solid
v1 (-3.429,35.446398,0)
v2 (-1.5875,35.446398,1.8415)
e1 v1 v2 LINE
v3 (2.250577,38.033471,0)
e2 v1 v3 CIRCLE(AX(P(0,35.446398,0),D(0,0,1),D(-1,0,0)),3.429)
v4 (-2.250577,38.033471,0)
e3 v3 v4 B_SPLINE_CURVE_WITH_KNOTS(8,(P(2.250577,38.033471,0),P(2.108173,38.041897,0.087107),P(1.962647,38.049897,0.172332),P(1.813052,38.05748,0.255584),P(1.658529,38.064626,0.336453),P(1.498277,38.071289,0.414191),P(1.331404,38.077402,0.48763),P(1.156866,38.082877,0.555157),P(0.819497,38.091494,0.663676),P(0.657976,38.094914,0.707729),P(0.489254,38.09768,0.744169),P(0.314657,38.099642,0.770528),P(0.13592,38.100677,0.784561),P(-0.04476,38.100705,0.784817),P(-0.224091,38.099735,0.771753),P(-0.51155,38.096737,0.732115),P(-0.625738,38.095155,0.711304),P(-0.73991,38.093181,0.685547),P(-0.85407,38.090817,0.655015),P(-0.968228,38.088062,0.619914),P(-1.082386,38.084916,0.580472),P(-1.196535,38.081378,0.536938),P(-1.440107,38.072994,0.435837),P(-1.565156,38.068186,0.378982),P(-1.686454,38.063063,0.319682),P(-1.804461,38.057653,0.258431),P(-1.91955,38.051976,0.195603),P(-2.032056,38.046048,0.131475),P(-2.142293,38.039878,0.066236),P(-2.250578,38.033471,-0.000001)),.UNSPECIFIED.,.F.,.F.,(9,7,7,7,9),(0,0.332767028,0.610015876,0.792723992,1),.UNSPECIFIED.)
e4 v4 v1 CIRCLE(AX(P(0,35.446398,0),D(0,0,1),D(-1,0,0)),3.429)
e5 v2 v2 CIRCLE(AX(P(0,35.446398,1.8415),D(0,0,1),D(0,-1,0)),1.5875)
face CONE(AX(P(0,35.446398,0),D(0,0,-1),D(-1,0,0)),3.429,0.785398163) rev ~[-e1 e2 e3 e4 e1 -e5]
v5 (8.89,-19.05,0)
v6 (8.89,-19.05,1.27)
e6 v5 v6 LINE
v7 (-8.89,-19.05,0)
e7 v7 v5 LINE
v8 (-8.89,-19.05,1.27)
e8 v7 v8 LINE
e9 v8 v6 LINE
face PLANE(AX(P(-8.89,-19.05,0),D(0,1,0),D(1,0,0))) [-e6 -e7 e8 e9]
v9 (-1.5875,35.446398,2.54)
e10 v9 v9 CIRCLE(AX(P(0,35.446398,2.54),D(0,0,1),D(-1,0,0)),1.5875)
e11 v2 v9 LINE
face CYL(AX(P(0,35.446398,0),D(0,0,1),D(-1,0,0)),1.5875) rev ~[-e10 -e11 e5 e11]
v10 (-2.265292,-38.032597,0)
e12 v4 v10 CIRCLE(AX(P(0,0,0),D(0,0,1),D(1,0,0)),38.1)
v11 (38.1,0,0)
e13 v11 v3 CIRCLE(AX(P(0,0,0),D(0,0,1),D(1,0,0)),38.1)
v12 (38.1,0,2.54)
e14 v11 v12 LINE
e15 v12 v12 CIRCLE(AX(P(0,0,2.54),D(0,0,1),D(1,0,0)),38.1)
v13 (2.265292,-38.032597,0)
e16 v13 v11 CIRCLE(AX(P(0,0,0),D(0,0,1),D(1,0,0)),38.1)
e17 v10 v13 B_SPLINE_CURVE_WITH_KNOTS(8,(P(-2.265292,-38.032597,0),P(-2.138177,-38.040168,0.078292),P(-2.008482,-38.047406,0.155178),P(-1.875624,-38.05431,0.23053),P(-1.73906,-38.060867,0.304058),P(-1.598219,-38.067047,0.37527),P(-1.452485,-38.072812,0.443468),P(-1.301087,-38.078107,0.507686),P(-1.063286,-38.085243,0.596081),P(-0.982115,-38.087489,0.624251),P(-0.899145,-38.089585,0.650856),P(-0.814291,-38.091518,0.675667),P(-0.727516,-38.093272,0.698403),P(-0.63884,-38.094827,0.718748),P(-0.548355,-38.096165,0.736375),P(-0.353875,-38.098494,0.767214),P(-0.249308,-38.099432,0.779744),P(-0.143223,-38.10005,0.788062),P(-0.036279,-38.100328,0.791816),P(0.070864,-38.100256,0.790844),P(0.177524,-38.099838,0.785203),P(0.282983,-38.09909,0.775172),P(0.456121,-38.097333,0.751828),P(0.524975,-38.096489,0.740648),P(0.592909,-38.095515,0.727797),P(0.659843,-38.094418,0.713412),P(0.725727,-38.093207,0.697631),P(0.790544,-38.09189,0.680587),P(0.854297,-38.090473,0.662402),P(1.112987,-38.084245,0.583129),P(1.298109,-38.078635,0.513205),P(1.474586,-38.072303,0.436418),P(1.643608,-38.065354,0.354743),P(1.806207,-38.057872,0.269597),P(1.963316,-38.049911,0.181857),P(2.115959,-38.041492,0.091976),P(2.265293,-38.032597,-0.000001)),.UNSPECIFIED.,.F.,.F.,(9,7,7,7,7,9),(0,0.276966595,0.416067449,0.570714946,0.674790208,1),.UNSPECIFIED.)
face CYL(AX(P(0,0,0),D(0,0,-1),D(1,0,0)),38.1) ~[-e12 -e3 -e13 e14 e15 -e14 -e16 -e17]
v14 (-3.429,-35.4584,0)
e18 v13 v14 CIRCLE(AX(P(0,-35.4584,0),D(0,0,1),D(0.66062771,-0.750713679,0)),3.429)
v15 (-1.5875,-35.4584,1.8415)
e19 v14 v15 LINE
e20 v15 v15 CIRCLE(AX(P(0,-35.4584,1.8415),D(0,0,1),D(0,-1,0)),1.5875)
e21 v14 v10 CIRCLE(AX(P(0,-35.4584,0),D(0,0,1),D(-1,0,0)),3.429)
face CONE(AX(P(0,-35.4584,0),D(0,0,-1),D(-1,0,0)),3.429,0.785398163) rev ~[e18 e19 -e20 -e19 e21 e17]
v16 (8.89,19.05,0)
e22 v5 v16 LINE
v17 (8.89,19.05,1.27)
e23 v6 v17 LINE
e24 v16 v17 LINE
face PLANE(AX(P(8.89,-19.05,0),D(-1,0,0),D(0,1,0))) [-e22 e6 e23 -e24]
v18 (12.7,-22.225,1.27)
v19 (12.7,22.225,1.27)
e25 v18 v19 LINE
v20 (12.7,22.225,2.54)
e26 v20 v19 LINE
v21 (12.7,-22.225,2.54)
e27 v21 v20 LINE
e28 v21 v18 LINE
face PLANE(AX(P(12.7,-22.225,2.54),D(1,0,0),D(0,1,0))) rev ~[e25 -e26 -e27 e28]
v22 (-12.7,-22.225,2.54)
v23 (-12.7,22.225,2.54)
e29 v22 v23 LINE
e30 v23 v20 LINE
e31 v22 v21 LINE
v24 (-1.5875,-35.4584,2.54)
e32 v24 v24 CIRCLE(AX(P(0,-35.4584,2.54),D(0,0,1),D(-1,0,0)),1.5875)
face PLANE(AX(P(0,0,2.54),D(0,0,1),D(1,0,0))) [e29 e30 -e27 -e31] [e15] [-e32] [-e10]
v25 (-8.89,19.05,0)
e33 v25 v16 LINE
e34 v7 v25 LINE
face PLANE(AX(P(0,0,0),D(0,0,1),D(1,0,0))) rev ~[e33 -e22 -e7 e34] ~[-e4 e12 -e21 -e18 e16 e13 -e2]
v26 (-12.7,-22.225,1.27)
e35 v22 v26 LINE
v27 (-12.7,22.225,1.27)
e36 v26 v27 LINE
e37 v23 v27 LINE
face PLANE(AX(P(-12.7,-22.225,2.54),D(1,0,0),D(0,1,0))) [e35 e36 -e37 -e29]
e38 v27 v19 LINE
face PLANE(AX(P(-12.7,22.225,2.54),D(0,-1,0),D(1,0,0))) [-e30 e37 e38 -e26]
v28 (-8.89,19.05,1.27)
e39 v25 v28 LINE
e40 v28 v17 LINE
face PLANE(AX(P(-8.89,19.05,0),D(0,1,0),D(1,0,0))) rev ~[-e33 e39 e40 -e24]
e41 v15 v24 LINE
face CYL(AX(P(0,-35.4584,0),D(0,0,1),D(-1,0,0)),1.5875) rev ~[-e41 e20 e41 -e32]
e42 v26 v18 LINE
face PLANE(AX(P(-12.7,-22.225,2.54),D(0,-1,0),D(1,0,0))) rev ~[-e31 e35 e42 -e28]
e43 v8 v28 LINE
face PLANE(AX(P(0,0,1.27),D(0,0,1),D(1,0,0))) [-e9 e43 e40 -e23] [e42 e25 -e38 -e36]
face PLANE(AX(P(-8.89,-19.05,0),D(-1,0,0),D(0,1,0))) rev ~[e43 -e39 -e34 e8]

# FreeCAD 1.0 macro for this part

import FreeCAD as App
import Part
import Sketcher
Q = App.Units.Quantity


def add_polygon(sketch, points):
    """Adds a closed chain of lines whose ends are joined by coincident constraints."""
    first, n = sketch.GeometryCount, len(points)
    for a, b in zip(points, points[1:] + points[:1]):
        sketch.addGeometry(Part.LineSegment(App.Vector(*a, 0), App.Vector(*b, 0)), False)
    for i in range(n):
        sketch.addConstraint(Sketcher.Constraint("Coincident", first + i, 2, first + (i + 1) % n, 1))

doc = App.newDocument("Part")
body = doc.addObject("PartDesign::Body", "Body")

# Sketch on XY plane
sketch1 = body.newObject("Sketcher::SketchObject", "Sketch")
sketch1.AttachmentSupport = (doc.getObject("XY_Plane"), [""])
sketch1.MapMode = "FlatFace"
sketch1.addGeometry(Part.Circle(App.Vector(0, 0, 0), App.Vector(0, 0, 1), 38.1), False)  # 0
add_polygon(sketch1, [(8.89, -19.05), (-8.89, -19.05), (-8.89, 19.05), (8.89, 19.05)])  # lines 1-4
sketch1.addConstraint(Sketcher.Constraint("Horizontal", 1))
sketch1.addConstraint(Sketcher.Constraint("Vertical", 2))
sketch1.addConstraint(Sketcher.Constraint("Horizontal", 3))
sketch1.addConstraint(Sketcher.Constraint("Vertical", 4))
sketch1.addConstraint(Sketcher.Constraint("Coincident", 0, 3, -1, 1))
sketch1.addConstraint(Sketcher.Constraint("Symmetric", 1, 2, 3, 2, -1, 1))
sketch1.addConstraint(Sketcher.Constraint("Diameter", 0, Q("3 in")))
sketch1.addConstraint(Sketcher.Constraint("DistanceX", 1, 2, 1, 1, Q("0.7 in")))
sketch1.addConstraint(Sketcher.Constraint("DistanceY", 2, 1, 2, 2, Q("1.5 in")))
pad1 = body.newObject("PartDesign::Pad", "Pad")
pad1.Profile = sketch1
pad1.Length = Q("0.1 in")

# Sketch on XY plane
sketch2 = body.newObject("Sketcher::SketchObject", "Sketch001")
sketch2.AttachmentSupport = (doc.getObject("XY_Plane"), [""])
sketch2.MapMode = "FlatFace"
sketch2.addGeometry(Part.Circle(App.Vector(0, -35.4584, 0), App.Vector(0, 0, 1), 1.5875), False)
sketch2.addGeometry(Part.Circle(App.Vector(0, 35.446398, 0), App.Vector(0, 0, 1), 1.5875), False)
sketch2.addConstraint(Sketcher.Constraint("Equal", 0, 1))
sketch2.addConstraint(Sketcher.Constraint("PointOnObject", 0, 3, -2))
sketch2.addConstraint(Sketcher.Constraint("PointOnObject", 1, 3, -2))
sketch2.addConstraint(Sketcher.Constraint("Diameter", 0, Q("0.125 in")))
sketch2.addConstraint(Sketcher.Constraint("DistanceY", 0, 3, -1, 1, Q("1.396 in")))
sketch2.addConstraint(Sketcher.Constraint("DistanceY", -1, 1, 1, 3, Q("35.446398 mm")))
doc.recompute()
hole = body.newObject("PartDesign::Hole", "Hole")
hole.Profile = sketch2
hole.ThreadType = "None"
hole.Diameter = Q("0.125 in")
hole.DepthType = "ThroughAll"
hole.HoleCutType = "Countersink"
hole.HoleCutDiameter = Q("0.27 in")
hole.HoleCutCountersinkAngle = 90
hole.Reversed = True

# Sketch on XY plane
sketch3 = body.newObject("Sketcher::SketchObject", "Sketch002")
sketch3.AttachmentSupport = (doc.getObject("XY_Plane"), [""])
sketch3.MapMode = "FlatFace"
sketch3.AttachmentOffset = App.Placement(App.Vector(0, 0, 0.1 * 25.4), App.Rotation())
add_polygon(sketch3, [(-12.7, 22.225), (-12.7, -22.225), (12.7, -22.225), (12.7, 22.225)])  # lines 0-3
add_polygon(sketch3, [(8.89, -19.05), (-8.89, -19.05), (-8.89, 19.05), (8.89, 19.05)])  # lines 4-7
sketch3.addConstraint(Sketcher.Constraint("Vertical", 0))
sketch3.addConstraint(Sketcher.Constraint("Horizontal", 1))
sketch3.addConstraint(Sketcher.Constraint("Vertical", 2))
sketch3.addConstraint(Sketcher.Constraint("Horizontal", 3))
sketch3.addConstraint(Sketcher.Constraint("Horizontal", 4))
sketch3.addConstraint(Sketcher.Constraint("Vertical", 5))
sketch3.addConstraint(Sketcher.Constraint("Horizontal", 6))
sketch3.addConstraint(Sketcher.Constraint("Vertical", 7))
sketch3.addConstraint(Sketcher.Constraint("Symmetric", 0, 2, 2, 2, -1, 1))
sketch3.addConstraint(Sketcher.Constraint("Symmetric", 4, 2, 6, 2, -1, 1))
sketch3.addConstraint(Sketcher.Constraint("DistanceX", 1, 1, 1, 2, Q("1 in")))
sketch3.addConstraint(Sketcher.Constraint("DistanceX", 4, 2, 4, 1, Q("0.7 in")))
sketch3.addConstraint(Sketcher.Constraint("DistanceY", 5, 1, 5, 2, Q("1.5 in")))
sketch3.addConstraint(Sketcher.Constraint("DistanceY", 0, 2, 0, 1, Q("1.75 in")))
pocket1 = body.newObject("PartDesign::Pocket", "Pocket")
pocket1.Profile = sketch3
pocket1.Length = Q("0.05 in")

doc.recompute()
